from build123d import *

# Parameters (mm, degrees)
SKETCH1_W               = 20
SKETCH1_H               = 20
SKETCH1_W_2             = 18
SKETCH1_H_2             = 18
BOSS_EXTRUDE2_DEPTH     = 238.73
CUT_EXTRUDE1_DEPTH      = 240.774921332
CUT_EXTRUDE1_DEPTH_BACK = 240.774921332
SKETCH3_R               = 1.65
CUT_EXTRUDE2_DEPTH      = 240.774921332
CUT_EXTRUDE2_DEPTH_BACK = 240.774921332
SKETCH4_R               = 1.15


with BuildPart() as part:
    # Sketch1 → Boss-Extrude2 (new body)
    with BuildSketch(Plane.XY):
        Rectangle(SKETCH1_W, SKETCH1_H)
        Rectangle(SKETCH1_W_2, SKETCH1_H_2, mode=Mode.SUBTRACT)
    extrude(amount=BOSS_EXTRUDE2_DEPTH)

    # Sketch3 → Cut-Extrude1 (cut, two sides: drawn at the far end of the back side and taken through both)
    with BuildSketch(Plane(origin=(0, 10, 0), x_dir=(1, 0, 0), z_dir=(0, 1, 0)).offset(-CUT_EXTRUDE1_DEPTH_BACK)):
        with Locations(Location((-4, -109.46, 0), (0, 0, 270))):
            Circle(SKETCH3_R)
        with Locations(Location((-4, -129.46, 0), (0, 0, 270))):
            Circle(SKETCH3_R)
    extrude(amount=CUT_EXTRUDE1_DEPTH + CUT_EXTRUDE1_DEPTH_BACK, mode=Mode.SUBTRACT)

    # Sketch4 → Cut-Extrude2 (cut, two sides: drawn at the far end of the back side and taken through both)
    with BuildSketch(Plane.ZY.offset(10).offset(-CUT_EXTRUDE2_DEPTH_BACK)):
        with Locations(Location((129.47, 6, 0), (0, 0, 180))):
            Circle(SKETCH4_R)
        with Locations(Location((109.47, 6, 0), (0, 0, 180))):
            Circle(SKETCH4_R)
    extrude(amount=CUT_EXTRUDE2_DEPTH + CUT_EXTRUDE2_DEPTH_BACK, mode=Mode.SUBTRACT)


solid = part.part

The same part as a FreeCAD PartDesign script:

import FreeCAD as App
import Part
import Sketcher
from FreeCAD import Vector

doc = App.newDocument("Part")
params = doc.addObject("Spreadsheet::Sheet", "Params")
for row, (alias, value) in enumerate([
    ("sketch1_width", "20 mm"),
    ("sketch1_width2", "18 mm"),
    ("pad1_length", "238.73 mm"),
    ("sketch2_diameter", "3.3 mm"),
    ("sketch3_diameter", "2.3 mm"),
], start=1):
    params.set(f"A{row}", alias)
    params.set(f"B{row}", "=" + value)
    params.setAlias(f"B{row}", alias)

body = doc.addObject("PartDesign::Body", "Body")

# Sketch on XY plane
sketch1 = body.newObject("Sketcher::SketchObject", "Sketch")
sketch1.AttachmentSupport = (doc.getObject("XY_Plane"), [""])
sketch1.MapMode = "FlatFace"
sketch1.addGeometry([
    Part.LineSegment(Vector(-10, 10, 0), Vector(-10, -10, 0)),  # 0
    Part.LineSegment(Vector(-10, -10, 0), Vector(10, -10, 0)),  # 1
    Part.LineSegment(Vector(10, -10, 0), Vector(10, 10, 0)),  # 2
    Part.LineSegment(Vector(10, 10, 0), Vector(-10, 10, 0)),  # 3
    Part.LineSegment(Vector(9, -9, 0), Vector(-9, -9, 0)),  # 4
    Part.LineSegment(Vector(-9, -9, 0), Vector(-9, 9, 0)),  # 5
    Part.LineSegment(Vector(-9, 9, 0), Vector(9, 9, 0)),  # 6
    Part.LineSegment(Vector(9, 9, 0), Vector(9, -9, 0)),  # 7
], False)
sketch1.addConstraint([
    Sketcher.Constraint("Coincident", 0, 2, 1, 1),
    Sketcher.Constraint("Coincident", 1, 2, 2, 1),
    Sketcher.Constraint("Coincident", 2, 2, 3, 1),
    Sketcher.Constraint("Coincident", 3, 2, 0, 1),
    Sketcher.Constraint("Coincident", 4, 2, 5, 1),
    Sketcher.Constraint("Coincident", 5, 2, 6, 1),
    Sketcher.Constraint("Coincident", 6, 2, 7, 1),
    Sketcher.Constraint("Coincident", 7, 2, 4, 1),
    Sketcher.Constraint("Vertical", 0),
    Sketcher.Constraint("Horizontal", 1),
    Sketcher.Constraint("Vertical", 2),
    Sketcher.Constraint("Horizontal", 3),
    Sketcher.Constraint("Horizontal", 4),
    Sketcher.Constraint("Vertical", 5),
    Sketcher.Constraint("Horizontal", 6),
    Sketcher.Constraint("Vertical", 7),
    Sketcher.Constraint("Symmetric", 0, 2, 2, 2, -1, 1),
    Sketcher.Constraint("Symmetric", 4, 2, 6, 2, -1, 1),
    Sketcher.Constraint("Equal", 3, 0),
    Sketcher.Constraint("Equal", 6, 5),
    Sketcher.Constraint("DistanceX", 1, 1, 1, 2, 20.0),
    Sketcher.Constraint("DistanceX", 4, 2, 4, 1, 18.0),
])
sketch1.setExpression("Constraints[20]", "Params.sketch1_width")
sketch1.setExpression("Constraints[21]", "Params.sketch1_width2")
pad1 = body.newObject("PartDesign::Pad", "Pad")
pad1.Profile = sketch1
pad1.setExpression("Length", "Params.pad1_length")

# Sketch on XZ plane
sketch2 = body.newObject("Sketcher::SketchObject", "Sketch001")
sketch2.AttachmentSupport = (doc.getObject("XZ_Plane"), [""])
sketch2.MapMode = "FlatFace"
sketch2.AttachmentOffset = App.Placement(Vector(0, 0, -10), App.Rotation())
sketch2.addGeometry([
    Part.Circle(Vector(-4, 109.5, 0), Vector(0, 0, 1), 1.6),
    Part.Circle(Vector(-4, 129.5, 0), Vector(0, 0, 1), 1.6),
], False)
sketch2.addConstraint([
    Sketcher.Constraint("Equal", 0, 1),
    Sketcher.Constraint("Vertical", 0, 3, 1, 3),
    Sketcher.Constraint("Diameter", 0, 3.3),
    Sketcher.Constraint("DistanceX", 0, 3, -1, 1, 4.0),
    Sketcher.Constraint("DistanceY", 0, 3, 1, 3, 20.0),
    Sketcher.Constraint("DistanceY", -1, 1, 0, 3, 109.46),
])
sketch2.setExpression("Constraints[2]", "Params.sketch2_diameter")
pocket1 = body.newObject("PartDesign::Pocket", "Pocket")
pocket1.Profile = sketch2
pocket1.Type = "ThroughAll"
pocket1.Midplane = True

# Sketch on YZ plane
sketch3 = body.newObject("Sketcher::SketchObject", "Sketch002")
sketch3.AttachmentSupport = (doc.getObject("YZ_Plane"), [""])
sketch3.MapMode = "FlatFace"
sketch3.AttachmentOffset = App.Placement(Vector(0, 0, -10), App.Rotation())
sketch3.addGeometry([
    Part.Circle(Vector(6, 129.5, 0), Vector(0, 0, 1), 1.1),
    Part.Circle(Vector(6, 109.5, 0), Vector(0, 0, 1), 1.1),
], False)
sketch3.addConstraint([
    Sketcher.Constraint("Equal", 0, 1),
    Sketcher.Constraint("Vertical", 0, 3, 1, 3),
    Sketcher.Constraint("Diameter", 0, 2.3),
    Sketcher.Constraint("DistanceX", -1, 1, 0, 3, 6.0),
    Sketcher.Constraint("DistanceY", 1, 3, 0, 3, 20.0),
    Sketcher.Constraint("DistanceY", -1, 1, 0, 3, 129.47),
])
sketch3.setExpression("Constraints[2]", "Params.sketch3_diameter")
pocket2 = body.newObject("PartDesign::Pocket", "Pocket001")
pocket2.Profile = sketch3
pocket2.Type = "ThroughAll"
pocket2.Midplane = True

doc.recompute()
